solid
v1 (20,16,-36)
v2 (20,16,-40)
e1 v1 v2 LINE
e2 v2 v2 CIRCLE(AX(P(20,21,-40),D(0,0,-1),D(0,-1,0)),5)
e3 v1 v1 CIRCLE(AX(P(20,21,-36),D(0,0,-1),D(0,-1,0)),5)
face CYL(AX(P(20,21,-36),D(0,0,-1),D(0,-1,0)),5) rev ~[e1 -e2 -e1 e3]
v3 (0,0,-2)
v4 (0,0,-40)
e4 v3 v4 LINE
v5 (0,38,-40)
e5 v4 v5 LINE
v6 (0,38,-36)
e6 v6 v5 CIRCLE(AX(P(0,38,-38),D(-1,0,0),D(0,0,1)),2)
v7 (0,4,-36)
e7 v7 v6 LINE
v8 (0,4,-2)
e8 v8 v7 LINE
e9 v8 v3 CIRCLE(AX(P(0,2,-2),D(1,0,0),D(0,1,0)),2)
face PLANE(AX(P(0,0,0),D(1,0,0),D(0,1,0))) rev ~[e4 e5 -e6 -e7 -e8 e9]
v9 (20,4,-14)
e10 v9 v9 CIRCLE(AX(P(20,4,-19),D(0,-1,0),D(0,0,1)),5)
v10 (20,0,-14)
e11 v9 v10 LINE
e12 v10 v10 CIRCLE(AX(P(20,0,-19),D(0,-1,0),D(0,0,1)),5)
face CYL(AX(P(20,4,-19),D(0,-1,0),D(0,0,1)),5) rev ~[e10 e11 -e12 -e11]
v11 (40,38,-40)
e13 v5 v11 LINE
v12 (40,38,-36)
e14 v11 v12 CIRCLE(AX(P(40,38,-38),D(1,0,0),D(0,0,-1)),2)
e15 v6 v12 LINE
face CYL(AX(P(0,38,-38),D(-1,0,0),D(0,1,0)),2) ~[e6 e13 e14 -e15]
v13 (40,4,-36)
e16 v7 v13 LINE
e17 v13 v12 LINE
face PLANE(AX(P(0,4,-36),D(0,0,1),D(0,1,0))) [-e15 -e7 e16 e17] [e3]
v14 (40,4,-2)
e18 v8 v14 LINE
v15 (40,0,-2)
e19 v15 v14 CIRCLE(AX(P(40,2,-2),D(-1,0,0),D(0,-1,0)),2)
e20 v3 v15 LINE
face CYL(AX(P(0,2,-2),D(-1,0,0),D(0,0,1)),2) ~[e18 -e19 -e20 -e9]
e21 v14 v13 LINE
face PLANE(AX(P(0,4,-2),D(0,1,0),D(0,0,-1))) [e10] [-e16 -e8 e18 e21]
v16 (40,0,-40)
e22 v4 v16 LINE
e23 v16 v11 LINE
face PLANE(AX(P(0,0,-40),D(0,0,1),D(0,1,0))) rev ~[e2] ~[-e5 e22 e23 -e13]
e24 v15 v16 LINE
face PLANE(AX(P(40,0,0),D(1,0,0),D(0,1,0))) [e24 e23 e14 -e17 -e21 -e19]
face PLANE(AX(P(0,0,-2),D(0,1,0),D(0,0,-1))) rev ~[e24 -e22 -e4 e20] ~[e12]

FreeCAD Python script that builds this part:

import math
import FreeCAD as App
import Part
import Sketcher

V = App.Vector

doc = App.newDocument("Part")
body = doc.addObject("PartDesign::Body", "Body")

# Sketch on YZ plane
sketch1 = body.newObject("Sketcher::SketchObject", "Sketch")
sketch1.AttachmentSupport = (doc.getObject("YZ_Plane"), [""])
sketch1.MapMode = "FlatFace"
sketch1.addGeometry([
    Part.ArcOfCircle(Part.Circle(V(2, -2, 0), V(0, 0, 1), 2), math.radians(0), math.radians(180)),  # 0
    Part.LineSegment(V(0, -2, 0), V(0, -40, 0)),  # 1
    Part.LineSegment(V(0, -40, 0), V(38, -40, 0)),  # 2
    Part.ArcOfCircle(Part.Circle(V(38, -38, 0), V(0, 0, 1), 2), math.radians(-90), math.radians(90)),  # 3
    Part.LineSegment(V(38, -36, 0), V(4, -36, 0)),  # 4
    Part.LineSegment(V(4, -36, 0), V(4, -2, 0)),  # 5
], False)
sketch1.addConstraint([
    Sketcher.Constraint("Tangent", 0, 2, 1, 1),
    Sketcher.Constraint("Coincident", 1, 2, 2, 1),
    Sketcher.Constraint("Tangent", 2, 2, 3, 1),
    Sketcher.Constraint("Tangent", 3, 2, 4, 1),
    Sketcher.Constraint("Coincident", 4, 2, 5, 1),
    Sketcher.Constraint("Tangent", 5, 2, 0, 1),
    Sketcher.Constraint("Vertical", 1),
    Sketcher.Constraint("Horizontal", 2),
    Sketcher.Constraint("Horizontal", 4),
    Sketcher.Constraint("Vertical", 5),
    Sketcher.Constraint("Equal", 0, 3),
    Sketcher.Constraint("PointOnObject", 0, 2, -2),
    Sketcher.Constraint("Equal", 2, 1),
    Sketcher.Constraint("Radius", 0, 2.0),
    Sketcher.Constraint("DistanceY", 0, 3, -1, 1, 2.0),
    Sketcher.Constraint("DistanceY", 1, 2, -1, 1, 40.0),
])
pad1 = body.newObject("PartDesign::Pad", "Pad")
pad1.Profile = sketch1
pad1.Length = 40

# Sketch on XZ plane
sketch2 = body.newObject("Sketcher::SketchObject", "Sketch001")
sketch2.AttachmentSupport = (doc.getObject("XZ_Plane"), [""])
sketch2.MapMode = "FlatFace"
sketch2.AttachmentOffset = App.Placement(V(0, 0, -4), App.Rotation())
sketch2.addGeometry(Part.Circle(V(20, -19, 0), V(0, 0, 1), 5), False)
sketch2.addConstraint([
    Sketcher.Constraint("Diameter", 0, 10.0),
    Sketcher.Constraint("DistanceX", -1, 1, 0, 3, 20.0),
    Sketcher.Constraint("DistanceY", 0, 3, -1, 1, 19.0),
])
doc.recompute()
hole = body.newObject("PartDesign::Hole", "Hole")
hole.Profile = sketch2
hole.ThreadType = "None"
hole.Diameter = 10
hole.DepthType = "ThroughAll"
hole.Reversed = True

# Sketch on XY plane
sketch3 = body.newObject("Sketcher::SketchObject", "Sketch002")
sketch3.AttachmentSupport = (doc.getObject("XY_Plane"), [""])
sketch3.MapMode = "FlatFace"
sketch3.AttachmentOffset = App.Placement(V(0, 0, -36), App.Rotation())
sketch3.addGeometry(Part.Circle(V(20, 21, 0), V(0, 0, 1), 5), False)
sketch3.addConstraint([
    Sketcher.Constraint("Diameter", 0, 10.0),
    Sketcher.Constraint("DistanceX", -1, 1, 0, 3, 20.0),
    Sketcher.Constraint("DistanceY", -1, 1, 0, 3, 21.0),
])
doc.recompute()
hole2 = body.newObject("PartDesign::Hole", "Hole001")
hole2.Profile = sketch3
hole2.ThreadType = "None"
hole2.Diameter = 10
hole2.DepthType = "ThroughAll"

doc.recompute()
